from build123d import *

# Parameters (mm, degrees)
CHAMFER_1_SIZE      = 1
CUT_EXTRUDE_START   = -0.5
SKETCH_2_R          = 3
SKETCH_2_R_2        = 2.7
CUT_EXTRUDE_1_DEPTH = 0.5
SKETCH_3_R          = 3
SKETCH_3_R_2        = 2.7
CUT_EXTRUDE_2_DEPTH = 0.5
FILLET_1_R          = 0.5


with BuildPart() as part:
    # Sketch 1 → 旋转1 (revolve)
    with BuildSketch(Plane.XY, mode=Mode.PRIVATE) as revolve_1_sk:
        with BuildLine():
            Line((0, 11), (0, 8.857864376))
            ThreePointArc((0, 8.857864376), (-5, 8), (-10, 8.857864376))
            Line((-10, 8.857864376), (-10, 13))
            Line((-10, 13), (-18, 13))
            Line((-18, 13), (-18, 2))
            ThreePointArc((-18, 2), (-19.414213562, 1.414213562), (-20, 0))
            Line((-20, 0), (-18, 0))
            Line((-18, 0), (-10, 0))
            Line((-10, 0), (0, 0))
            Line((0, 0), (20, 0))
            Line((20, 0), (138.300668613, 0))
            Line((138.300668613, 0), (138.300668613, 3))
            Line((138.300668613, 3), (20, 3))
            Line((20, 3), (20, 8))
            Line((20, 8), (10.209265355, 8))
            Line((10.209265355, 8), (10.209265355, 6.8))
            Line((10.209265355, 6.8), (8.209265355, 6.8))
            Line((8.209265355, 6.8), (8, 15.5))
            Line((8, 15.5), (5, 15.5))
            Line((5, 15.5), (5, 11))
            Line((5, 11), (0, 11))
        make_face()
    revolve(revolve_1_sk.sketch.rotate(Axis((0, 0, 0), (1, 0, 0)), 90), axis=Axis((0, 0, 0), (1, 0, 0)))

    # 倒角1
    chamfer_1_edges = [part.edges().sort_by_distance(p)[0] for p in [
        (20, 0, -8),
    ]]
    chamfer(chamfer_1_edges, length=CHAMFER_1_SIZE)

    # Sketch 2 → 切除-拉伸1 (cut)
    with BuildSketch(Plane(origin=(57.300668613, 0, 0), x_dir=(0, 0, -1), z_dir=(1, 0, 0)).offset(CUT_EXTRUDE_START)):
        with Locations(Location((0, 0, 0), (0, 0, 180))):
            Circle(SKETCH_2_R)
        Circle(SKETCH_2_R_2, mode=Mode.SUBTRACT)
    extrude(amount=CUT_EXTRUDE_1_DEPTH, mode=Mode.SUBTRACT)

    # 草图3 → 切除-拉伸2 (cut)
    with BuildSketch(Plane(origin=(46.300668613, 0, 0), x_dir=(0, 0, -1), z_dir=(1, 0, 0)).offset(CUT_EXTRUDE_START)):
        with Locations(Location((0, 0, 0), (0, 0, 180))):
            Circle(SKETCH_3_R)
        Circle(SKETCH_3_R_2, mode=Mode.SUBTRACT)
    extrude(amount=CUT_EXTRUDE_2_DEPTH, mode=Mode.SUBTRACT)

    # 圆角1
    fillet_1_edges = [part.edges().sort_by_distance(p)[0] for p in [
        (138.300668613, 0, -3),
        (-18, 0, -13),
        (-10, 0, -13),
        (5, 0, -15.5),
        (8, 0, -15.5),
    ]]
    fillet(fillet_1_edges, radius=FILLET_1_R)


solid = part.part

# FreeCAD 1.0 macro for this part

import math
import FreeCAD as App
import Part
import Sketcher
Q = App.Units.Quantity


def edges_at(feature, points):
    """Names of the edges that pass closest to the given points."""
    edges = feature.Shape.Edges
    near = lambda p: min(range(len(edges)), key=lambda i: edges[i].distToShape(Part.Vertex(*p))[0])
    return sorted({f"Edge{near(p) + 1}" for p in points})

doc = App.newDocument("Part")
params = doc.addObject("Spreadsheet::Sheet", "Params")
for row, (alias, value) in enumerate([
    ("sketch1_radius", "15 mm"),
    ("sketch1_radius2", "2 mm"),
    ("sketch1_width", "8 mm"),
    ("sketch1_width2", "2 mm"),
    ("sketch1_width3", "3 mm"),
    ("revolution_angle", "360 deg"),
    ("chamfer_size", "1 mm"),
    ("sketch2_diameter", "6 mm"),
    ("sketch2_diameter2", "5.4 mm"),
    ("pocket1_length", "0.5 mm"),
    ("sketch3_diameter", "6 mm"),
    ("sketch3_diameter2", "5.4 mm"),
    ("pocket2_length", "0.5 mm"),
    ("fillet_radius", "0.5 mm"),
], start=1):
    params.set(f"A{row}", alias)
    params.set(f"B{row}", "=" + value)
    params.setAlias(f"B{row}", alias)

body = doc.addObject("PartDesign::Body", "Body")

# Sketch on XY plane
sketch1 = doc.addObject("Sketcher::SketchObject", "Sketch")
body.addObject(sketch1)
sketch1.AttachmentSupport = (doc.XY_Plane, [""])
sketch1.MapMode = "FlatFace"
sketch1.addGeometry([
    Part.LineSegment(App.Vector(0, 11, 0), App.Vector(0, 8.857864, 0)),  # 0
    Part.ArcOfCircle(Part.Circle(App.Vector(-5, 23, 0), App.Vector(0, 0, 1), 15), math.radians(-109.471221), math.radians(-70.528779)),  # 1
    Part.LineSegment(App.Vector(-10, 8.857864, 0), App.Vector(-10, 13, 0)),  # 2
    Part.LineSegment(App.Vector(-10, 13, 0), App.Vector(-18, 13, 0)),  # 3
    Part.LineSegment(App.Vector(-18, 13, 0), App.Vector(-18, 2, 0)),  # 4
    Part.ArcOfCircle(Part.Circle(App.Vector(-18, 0, 0), App.Vector(0, 0, 1), 2), math.radians(90), math.radians(180)),  # 5
    Part.LineSegment(App.Vector(-20, 0, 0), App.Vector(138.300669, 0, 0)),  # 6
    Part.LineSegment(App.Vector(138.300669, 0, 0), App.Vector(138.300669, 3, 0)),  # 7
    Part.LineSegment(App.Vector(138.300669, 3, 0), App.Vector(20, 3, 0)),  # 8
    Part.LineSegment(App.Vector(20, 3, 0), App.Vector(20, 8, 0)),  # 9
    Part.LineSegment(App.Vector(20, 8, 0), App.Vector(10.209265, 8, 0)),  # 10
    Part.LineSegment(App.Vector(10.209265, 8, 0), App.Vector(10.209265, 6.8, 0)),  # 11
    Part.LineSegment(App.Vector(10.209265, 6.8, 0), App.Vector(8.209265, 6.8, 0)),  # 12
    Part.LineSegment(App.Vector(8.209265, 6.8, 0), App.Vector(8, 15.5, 0)),  # 13
    Part.LineSegment(App.Vector(8, 15.5, 0), App.Vector(5, 15.5, 0)),  # 14
    Part.LineSegment(App.Vector(5, 15.5, 0), App.Vector(5, 11, 0)),  # 15
    Part.LineSegment(App.Vector(5, 11, 0), App.Vector(0, 11, 0)),  # 16
], False)
sketch1.addConstraint([
    Sketcher.Constraint("Coincident", 0, 2, 1, 2),
    Sketcher.Constraint("Coincident", 1, 1, 2, 1),
    Sketcher.Constraint("Coincident", 2, 2, 3, 1),
    Sketcher.Constraint("Coincident", 3, 2, 4, 1),
    Sketcher.Constraint("Coincident", 4, 2, 5, 1),
    Sketcher.Constraint("Coincident", 5, 2, 6, 1),
    Sketcher.Constraint("Coincident", 6, 2, 7, 1),
    Sketcher.Constraint("Coincident", 7, 2, 8, 1),
    Sketcher.Constraint("Coincident", 8, 2, 9, 1),
    Sketcher.Constraint("Coincident", 9, 2, 10, 1),
    Sketcher.Constraint("Coincident", 10, 2, 11, 1),
    Sketcher.Constraint("Coincident", 11, 2, 12, 1),
    Sketcher.Constraint("Coincident", 12, 2, 13, 1),
    Sketcher.Constraint("Coincident", 13, 2, 14, 1),
    Sketcher.Constraint("Coincident", 14, 2, 15, 1),
    Sketcher.Constraint("Coincident", 15, 2, 16, 1),
    Sketcher.Constraint("Coincident", 16, 2, 0, 1),
    Sketcher.Constraint("Vertical", 0),
    Sketcher.Constraint("Vertical", 2),
    Sketcher.Constraint("Horizontal", 3),
    Sketcher.Constraint("Vertical", 4),
    Sketcher.Constraint("Horizontal", 6),
    Sketcher.Constraint("Vertical", 7),
    Sketcher.Constraint("Horizontal", 8),
    Sketcher.Constraint("Vertical", 9),
    Sketcher.Constraint("Horizontal", 10),
    Sketcher.Constraint("Vertical", 11),
    Sketcher.Constraint("Horizontal", 12),
    Sketcher.Constraint("Horizontal", 14),
    Sketcher.Constraint("Vertical", 15),
    Sketcher.Constraint("Horizontal", 16),
    Sketcher.Constraint("PointOnObject", 5, 3, -1),
    Sketcher.Constraint("PointOnObject", 0, 2, -2),
    Sketcher.Constraint("PointOnObject", 5, 2, -1),
    Sketcher.Constraint("Horizontal", 0, 2, 1, 1),
    Sketcher.Constraint("Vertical", 5, 3, 3, 2),
    Sketcher.Constraint("Equal", 14, 7),
    Sketcher.Constraint("Equal", 16, 9),
    Sketcher.Constraint("Radius", 1, Q("15 mm")),
    Sketcher.Constraint("Radius", 5, Q("2 mm")),
    Sketcher.Constraint("DistanceX", 3, 2, 3, 1, Q("8 mm")),
    Sketcher.Constraint("DistanceX", 12, 2, 12, 1, Q("2 mm")),
    Sketcher.Constraint("DistanceX", 14, 2, 14, 1, Q("3 mm")),
    Sketcher.Constraint("DistanceX", 16, 2, 16, 1, Q("5 mm")),
    Sketcher.Constraint("DistanceY", 4, 2, 4, 1, Q("11 mm")),
    Sketcher.Constraint("DistanceY", 11, 2, 11, 1, Q("1.2 mm")),
    Sketcher.Constraint("DistanceY", 15, 2, 15, 1, Q("4.5 mm")),
    Sketcher.Constraint("DistanceX", 1, 3, -1, 1, Q("5 mm")),
    Sketcher.Constraint("DistanceY", -1, 1, 1, 3, Q("23 mm")),
    Sketcher.Constraint("DistanceX", -1, 1, 8, 2, Q("20 mm")),
    Sketcher.Constraint("DistanceY", -1, 1, 15, 2, Q("11 mm")),
    Sketcher.Constraint("DistanceX", 6, 1, 6, 2, Q("158.300669 mm")),
    Sketcher.Constraint("DistanceX", 10, 2, 10, 1, Q("9.790735 mm")),
])
sketch1.setExpression("Constraints[38]", "Params.sketch1_radius")
sketch1.setExpression("Constraints[39]", "Params.sketch1_radius2")
sketch1.setExpression("Constraints[40]", "Params.sketch1_width")
sketch1.setExpression("Constraints[41]", "Params.sketch1_width2")
sketch1.setExpression("Constraints[42]", "Params.sketch1_width3")
revolution = doc.addObject("PartDesign::Revolution", "Revolution")
body.addObject(revolution)
revolution.Profile = sketch1
revolution.ReferenceAxis = (sketch1, ["H_Axis"])
revolution.setExpression("Angle", "Params.revolution_angle")
doc.recompute()

chamfer = doc.addObject("PartDesign::Chamfer", "Chamfer")
body.addObject(chamfer)
chamfer.Base = (revolution, edges_at(revolution, [(20, 0, -8)]))
chamfer.setExpression("Size", "Params.chamfer_size")

# Sketch on YZ plane
sketch2 = doc.addObject("Sketcher::SketchObject", "Sketch001")
body.addObject(sketch2)
sketch2.AttachmentSupport = (doc.YZ_Plane, [""])
sketch2.MapMode = "FlatFace"
sketch2.AttachmentOffset = App.Placement(App.Vector(0, 0, 56.800669), App.Rotation())
sketch2.addGeometry([
    Part.Circle(App.Vector(0, 0, 0), App.Vector(0, 0, 1), 3),
    Part.Circle(App.Vector(0, 0, 0), App.Vector(0, 0, 1), 2.7),
], False)
sketch2.addConstraint([
    Sketcher.Constraint("Coincident", 0, 3, -1, 1),
    Sketcher.Constraint("Coincident", 1, 3, -1, 1),
    Sketcher.Constraint("Diameter", 0, Q("6 mm")),
    Sketcher.Constraint("Diameter", 1, Q("5.4 mm")),
])
sketch2.setExpression("Constraints[2]", "Params.sketch2_diameter")
sketch2.setExpression("Constraints[3]", "Params.sketch2_diameter2")
pocket1 = doc.addObject("PartDesign::Pocket", "Pocket")
body.addObject(pocket1)
pocket1.Profile = sketch2
pocket1.setExpression("Length", "Params.pocket1_length")
pocket1.Reversed = True

# Sketch on YZ plane
sketch3 = doc.addObject("Sketcher::SketchObject", "Sketch002")
body.addObject(sketch3)
sketch3.AttachmentSupport = (doc.YZ_Plane, [""])
sketch3.MapMode = "FlatFace"
sketch3.AttachmentOffset = App.Placement(App.Vector(0, 0, 45.800669), App.Rotation())
sketch3.addGeometry([
    Part.Circle(App.Vector(0, 0, 0), App.Vector(0, 0, 1), 3),
    Part.Circle(App.Vector(0, 0, 0), App.Vector(0, 0, 1), 2.7),
], False)
sketch3.addConstraint([
    Sketcher.Constraint("Coincident", 0, 3, -1, 1),
    Sketcher.Constraint("Coincident", 1, 3, -1, 1),
    Sketcher.Constraint("Diameter", 0, Q("6 mm")),
    Sketcher.Constraint("Diameter", 1, Q("5.4 mm")),
])
sketch3.setExpression("Constraints[2]", "Params.sketch3_diameter")
sketch3.setExpression("Constraints[3]", "Params.sketch3_diameter2")
pocket2 = doc.addObject("PartDesign::Pocket", "Pocket001")
body.addObject(pocket2)
pocket2.Profile = sketch3
pocket2.setExpression("Length", "Params.pocket2_length")
pocket2.Reversed = True
doc.recompute()

fillet = doc.addObject("PartDesign::Fillet", "Fillet")
body.addObject(fillet)
fillet.Base = (pocket2, edges_at(pocket2, [
    (138.301, 0, -3),
    (-18, 0, -13),
    (-10, 0, -13),
    (5, 0, -15.5),
    (8, 0, -15.5),
]))
fillet.setExpression("Radius", "Params.fillet_radius")

doc.recompute()
